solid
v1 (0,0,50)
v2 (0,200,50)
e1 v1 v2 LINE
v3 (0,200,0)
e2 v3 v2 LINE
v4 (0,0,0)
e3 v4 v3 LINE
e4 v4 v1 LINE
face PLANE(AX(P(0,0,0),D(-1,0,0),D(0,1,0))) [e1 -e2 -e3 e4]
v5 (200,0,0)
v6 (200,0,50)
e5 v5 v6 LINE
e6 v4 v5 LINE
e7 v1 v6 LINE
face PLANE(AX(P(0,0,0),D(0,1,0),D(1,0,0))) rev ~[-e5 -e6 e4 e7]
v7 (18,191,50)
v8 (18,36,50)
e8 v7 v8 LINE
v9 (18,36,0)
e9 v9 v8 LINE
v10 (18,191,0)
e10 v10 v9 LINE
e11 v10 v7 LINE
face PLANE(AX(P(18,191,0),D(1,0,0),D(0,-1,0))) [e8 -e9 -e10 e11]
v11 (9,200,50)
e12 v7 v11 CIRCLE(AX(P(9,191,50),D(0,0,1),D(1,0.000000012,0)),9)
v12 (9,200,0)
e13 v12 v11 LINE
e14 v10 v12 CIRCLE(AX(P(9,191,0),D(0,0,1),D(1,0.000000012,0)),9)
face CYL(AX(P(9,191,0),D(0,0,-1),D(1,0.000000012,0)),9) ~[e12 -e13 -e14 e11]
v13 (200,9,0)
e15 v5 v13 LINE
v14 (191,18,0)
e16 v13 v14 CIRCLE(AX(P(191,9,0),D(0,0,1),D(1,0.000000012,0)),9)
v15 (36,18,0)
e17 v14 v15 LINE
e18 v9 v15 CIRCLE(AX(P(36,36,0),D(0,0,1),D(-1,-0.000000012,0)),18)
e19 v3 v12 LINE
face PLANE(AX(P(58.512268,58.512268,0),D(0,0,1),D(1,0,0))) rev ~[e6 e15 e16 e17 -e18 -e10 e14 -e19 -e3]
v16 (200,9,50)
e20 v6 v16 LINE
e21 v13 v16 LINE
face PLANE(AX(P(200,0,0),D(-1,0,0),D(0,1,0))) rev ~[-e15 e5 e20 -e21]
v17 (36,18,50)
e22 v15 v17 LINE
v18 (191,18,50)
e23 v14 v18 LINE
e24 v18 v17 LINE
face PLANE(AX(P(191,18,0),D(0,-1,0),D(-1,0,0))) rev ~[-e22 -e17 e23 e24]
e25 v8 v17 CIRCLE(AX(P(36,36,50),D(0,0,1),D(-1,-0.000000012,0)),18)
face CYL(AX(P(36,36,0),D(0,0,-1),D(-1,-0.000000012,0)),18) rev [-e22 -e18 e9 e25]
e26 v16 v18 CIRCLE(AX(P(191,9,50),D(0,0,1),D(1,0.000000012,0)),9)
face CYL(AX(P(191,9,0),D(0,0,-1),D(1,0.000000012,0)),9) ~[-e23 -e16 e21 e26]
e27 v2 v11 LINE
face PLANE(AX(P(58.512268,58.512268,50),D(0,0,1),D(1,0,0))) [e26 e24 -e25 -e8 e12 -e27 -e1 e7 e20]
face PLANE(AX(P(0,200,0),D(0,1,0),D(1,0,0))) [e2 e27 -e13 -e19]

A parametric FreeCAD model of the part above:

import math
import FreeCAD as App
import Part
import Sketcher
Q = App.Units.Quantity

doc = App.newDocument("Part")
body = doc.addObject("PartDesign::Body", "Body")

sketch1 = body.newObject("Sketcher::SketchObject", "Sketch")
sketch1.AttachmentSupport = (doc.getObject("XY_Plane"), [""])
sketch1.MapMode = "FlatFace"
sketch1.addGeometry(Part.LineSegment(App.Vector(0, 0, 0), App.Vector(200, 0, 0)), False)
sketch1.addGeometry(Part.LineSegment(App.Vector(200, 0, 0), App.Vector(200, 9, 0)), False)
sketch1.addGeometry(Part.ArcOfCircle(Part.Circle(App.Vector(191, 9, 0), App.Vector(0, 0, 1), 9), math.radians(0.000001), math.radians(89.999999)), False)
sketch1.addGeometry(Part.LineSegment(App.Vector(191, 18, 0), App.Vector(36, 18, 0)), False)
sketch1.addGeometry(Part.ArcOfCircle(Part.Circle(App.Vector(36, 36, 0), App.Vector(0, 0, 1), 18), math.radians(-179.999999), math.radians(-90.000001)), False)
sketch1.addGeometry(Part.LineSegment(App.Vector(18, 36, 0), App.Vector(18, 191, 0)), False)
sketch1.addGeometry(Part.ArcOfCircle(Part.Circle(App.Vector(9, 191, 0), App.Vector(0, 0, 1), 9), math.radians(0.000001), math.radians(89.999999)), False)
sketch1.addGeometry(Part.LineSegment(App.Vector(9, 200, 0), App.Vector(0, 200, 0)), False)
sketch1.addGeometry(Part.LineSegment(App.Vector(0, 200, 0), App.Vector(0, 0, 0)), False)
sketch1.addConstraint(Sketcher.Constraint("Coincident", 0, 2, 1, 1))
sketch1.addConstraint(Sketcher.Constraint("Tangent", 1, 2, 2, 1))
sketch1.addConstraint(Sketcher.Constraint("Tangent", 2, 2, 3, 1))
sketch1.addConstraint(Sketcher.Constraint("Tangent", 3, 2, 4, 2))
sketch1.addConstraint(Sketcher.Constraint("Tangent", 4, 1, 5, 1))
sketch1.addConstraint(Sketcher.Constraint("Tangent", 5, 2, 6, 1))
sketch1.addConstraint(Sketcher.Constraint("Tangent", 6, 2, 7, 1))
sketch1.addConstraint(Sketcher.Constraint("Coincident", 7, 2, 8, 1))
sketch1.addConstraint(Sketcher.Constraint("Coincident", 8, 2, 0, 1))
sketch1.addConstraint(Sketcher.Constraint("Horizontal", 0))
sketch1.addConstraint(Sketcher.Constraint("Vertical", 1))
sketch1.addConstraint(Sketcher.Constraint("Horizontal", 3))
sketch1.addConstraint(Sketcher.Constraint("Vertical", 5))
sketch1.addConstraint(Sketcher.Constraint("Horizontal", 7))
sketch1.addConstraint(Sketcher.Constraint("Vertical", 8))
sketch1.addConstraint(Sketcher.Constraint("Coincident", 8, 2, -1, 1))
sketch1.addConstraint(Sketcher.Constraint("Equal", 2, 6))
sketch1.addConstraint(Sketcher.Constraint("Equal", 7, 1))
sketch1.addConstraint(Sketcher.Constraint("Equal", 3, 5))
sketch1.addConstraint(Sketcher.Constraint("Radius", 2, Q("9 mm")))
sketch1.addConstraint(Sketcher.Constraint("Radius", 4, Q("18 mm")))
sketch1.addConstraint(Sketcher.Constraint("DistanceX", 0, 1, 0, 2, Q("200 mm")))
sketch1.addConstraint(Sketcher.Constraint("DistanceX", 3, 2, 3, 1, Q("155 mm")))
pad1 = body.newObject("PartDesign::Pad", "Pad")
pad1.Profile = sketch1
pad1.Length = 50

doc.recompute()
